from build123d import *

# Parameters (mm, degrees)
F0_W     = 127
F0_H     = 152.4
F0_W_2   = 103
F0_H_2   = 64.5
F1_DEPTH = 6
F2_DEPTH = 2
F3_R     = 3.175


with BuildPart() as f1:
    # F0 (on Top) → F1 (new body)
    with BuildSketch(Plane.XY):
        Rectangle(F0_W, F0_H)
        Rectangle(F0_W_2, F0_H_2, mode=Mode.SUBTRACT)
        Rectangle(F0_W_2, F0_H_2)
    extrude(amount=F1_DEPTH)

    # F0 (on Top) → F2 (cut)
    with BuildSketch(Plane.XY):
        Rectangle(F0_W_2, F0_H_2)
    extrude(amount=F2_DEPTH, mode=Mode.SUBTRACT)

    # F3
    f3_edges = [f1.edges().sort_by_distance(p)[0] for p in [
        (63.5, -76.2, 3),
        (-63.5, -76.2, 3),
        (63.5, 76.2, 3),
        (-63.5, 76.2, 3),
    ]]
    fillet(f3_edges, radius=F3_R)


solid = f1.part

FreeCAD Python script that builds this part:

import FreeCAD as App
import Part
import Sketcher
from FreeCAD import Vector


def edges_at(feature, points):
    """Names of the edges that pass closest to the given points."""
    edges = feature.Shape.Edges
    near = lambda p: min(range(len(edges)), key=lambda i: edges[i].distToShape(Part.Vertex(*p))[0])
    return sorted({f"Edge{near(p) + 1}" for p in points})

doc = App.newDocument("Part")
body = doc.addObject("PartDesign::Body", "Body")

sketch1 = doc.addObject("Sketcher::SketchObject", "Sketch")
body.addObject(sketch1)
sketch1.AttachmentSupport = (doc.XY_Plane, [""])
sketch1.MapMode = "FlatFace"
sketch1.addGeometry([
    Part.LineSegment(Vector(-63.5, 76.2, 0), Vector(-63.5, -76.2, 0)),
    Part.LineSegment(Vector(-63.5, -76.2, 0), Vector(63.5, -76.2, 0)),
    Part.LineSegment(Vector(63.5, -76.2, 0), Vector(63.5, 76.2, 0)),
    Part.LineSegment(Vector(63.5, 76.2, 0), Vector(-63.5, 76.2, 0)),
], False)
sketch1.addConstraint([
    Sketcher.Constraint("Coincident", 0, 2, 1, 1),
    Sketcher.Constraint("Coincident", 1, 2, 2, 1),
    Sketcher.Constraint("Coincident", 2, 2, 3, 1),
    Sketcher.Constraint("Coincident", 3, 2, 0, 1),
    Sketcher.Constraint("Vertical", 0),
    Sketcher.Constraint("Horizontal", 1),
    Sketcher.Constraint("Vertical", 2),
    Sketcher.Constraint("Horizontal", 3),
    Sketcher.Constraint("Symmetric", 0, 2, 2, 2, -1, 1),
    Sketcher.Constraint("DistanceX", 1, 1, 1, 2, 127.0),
    Sketcher.Constraint("DistanceY", 0, 2, 0, 1, 152.4),
])
pad1 = doc.addObject("PartDesign::Pad", "Pad")
body.addObject(pad1)
pad1.Profile = sketch1
pad1.Length = 6

sketch2 = doc.addObject("Sketcher::SketchObject", "Sketch001")
body.addObject(sketch2)
sketch2.AttachmentSupport = (doc.XY_Plane, [""])
sketch2.MapMode = "FlatFace"
sketch2.addGeometry([
    Part.LineSegment(Vector(-51.5, 32.25, 0), Vector(-51.5, -32.25, 0)),
    Part.LineSegment(Vector(-51.5, -32.25, 0), Vector(51.5, -32.25, 0)),
    Part.LineSegment(Vector(51.5, -32.25, 0), Vector(51.5, 32.25, 0)),
    Part.LineSegment(Vector(51.5, 32.25, 0), Vector(-51.5, 32.25, 0)),
], False)
sketch2.addConstraint([
    Sketcher.Constraint("Coincident", 0, 2, 1, 1),
    Sketcher.Constraint("Coincident", 1, 2, 2, 1),
    Sketcher.Constraint("Coincident", 2, 2, 3, 1),
    Sketcher.Constraint("Coincident", 3, 2, 0, 1),
    Sketcher.Constraint("Vertical", 0),
    Sketcher.Constraint("Horizontal", 1),
    Sketcher.Constraint("Vertical", 2),
    Sketcher.Constraint("Horizontal", 3),
    Sketcher.Constraint("Symmetric", 0, 2, 2, 2, -1, 1),
    Sketcher.Constraint("DistanceX", 1, 1, 1, 2, 103.0),
    Sketcher.Constraint("DistanceY", 0, 2, 0, 1, 64.5),
])
pocket1 = doc.addObject("PartDesign::Pocket", "Pocket")
body.addObject(pocket1)
pocket1.Profile = sketch2
pocket1.Length = 2
pocket1.Reversed = True
doc.recompute()

fillet = doc.addObject("PartDesign::Fillet", "Fillet")
body.addObject(fillet)
fillet.Base = (pocket1, edges_at(pocket1, [
    (63.5, -76.2, 3),
    (-63.5, -76.2, 3),
    (63.5, 76.2, 3),
    (-63.5, 76.2, 3),
]))
fillet.Radius = 3.175

doc.recompute()
